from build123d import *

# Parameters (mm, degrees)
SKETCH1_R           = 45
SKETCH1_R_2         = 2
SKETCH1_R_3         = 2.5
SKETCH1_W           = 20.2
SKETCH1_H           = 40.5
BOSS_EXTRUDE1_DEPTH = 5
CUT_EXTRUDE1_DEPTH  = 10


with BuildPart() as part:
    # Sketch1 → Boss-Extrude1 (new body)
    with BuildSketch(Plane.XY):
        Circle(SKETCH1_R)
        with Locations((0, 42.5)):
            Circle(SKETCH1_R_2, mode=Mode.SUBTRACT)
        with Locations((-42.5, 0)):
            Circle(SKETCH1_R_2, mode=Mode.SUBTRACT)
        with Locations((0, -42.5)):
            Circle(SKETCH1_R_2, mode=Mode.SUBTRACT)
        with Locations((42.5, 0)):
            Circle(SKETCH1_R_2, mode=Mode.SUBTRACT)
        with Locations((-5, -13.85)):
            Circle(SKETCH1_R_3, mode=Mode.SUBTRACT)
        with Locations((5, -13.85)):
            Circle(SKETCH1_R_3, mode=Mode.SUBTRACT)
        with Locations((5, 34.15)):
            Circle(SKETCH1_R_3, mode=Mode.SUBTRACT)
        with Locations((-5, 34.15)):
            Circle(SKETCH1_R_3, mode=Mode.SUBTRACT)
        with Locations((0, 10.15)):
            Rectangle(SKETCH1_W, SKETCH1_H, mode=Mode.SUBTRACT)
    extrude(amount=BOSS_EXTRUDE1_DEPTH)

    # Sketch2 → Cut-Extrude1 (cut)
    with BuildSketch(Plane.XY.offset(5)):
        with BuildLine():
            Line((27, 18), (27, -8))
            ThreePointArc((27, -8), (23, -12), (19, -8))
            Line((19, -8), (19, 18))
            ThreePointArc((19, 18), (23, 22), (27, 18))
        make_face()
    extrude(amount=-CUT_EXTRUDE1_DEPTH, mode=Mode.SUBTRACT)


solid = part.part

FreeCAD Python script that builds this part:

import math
import FreeCAD as App
import Part
import Sketcher

V = App.Vector


def add_polygon(sketch, points):
    """Adds a closed chain of lines whose ends are joined by coincident constraints."""
    first, n = sketch.GeometryCount, len(points)
    for a, b in zip(points, points[1:] + points[:1]):
        sketch.addGeometry(Part.LineSegment(App.Vector(*a, 0), App.Vector(*b, 0)), False)
    for i in range(n):
        sketch.addConstraint(Sketcher.Constraint("Coincident", first + i, 2, first + (i + 1) % n, 1))

doc = App.newDocument("Part")
body = doc.addObject("PartDesign::Body", "Body")

# Sketch on XY plane
sketch1 = body.newObject("Sketcher::SketchObject", "Sketch")
sketch1.AttachmentSupport = (doc.getObject("XY_Plane"), [""])
sketch1.MapMode = "FlatFace"
sketch1.addGeometry(Part.Circle(V(0, 0, 0), V(0, 0, 1), 45), False)  # 0
sketch1.addGeometry(Part.Circle(V(-5, -13.8, 0), V(0, 0, 1), 2.5), False)  # 1
sketch1.addGeometry(Part.Circle(V(0, -42.5, 0), V(0, 0, 1), 2), False)  # 2
sketch1.addGeometry(Part.Circle(V(5, -13.8, 0), V(0, 0, 1), 2.5), False)  # 3
sketch1.addGeometry(Part.Circle(V(-42.5, 0, 0), V(0, 0, 1), 2), False)  # 4
sketch1.addGeometry(Part.Circle(V(-5, 34.1, 0), V(0, 0, 1), 2.5), False)  # 5
add_polygon(sketch1, [(10.1, -10.1), (-10.1, -10.1), (-10.1, 30.4), (10.1, 30.4)])  # lines 6-9
sketch1.addGeometry(Part.Circle(V(42.5, 0, 0), V(0, 0, 1), 2), False)  # 10
sketch1.addGeometry(Part.Circle(V(5, 34.1, 0), V(0, 0, 1), 2.5), False)  # 11
sketch1.addGeometry(Part.Circle(V(0, 42.5, 0), V(0, 0, 1), 2), False)  # 12
sketch1.addConstraint(Sketcher.Constraint("Horizontal", 6))
sketch1.addConstraint(Sketcher.Constraint("Vertical", 7))
sketch1.addConstraint(Sketcher.Constraint("Horizontal", 8))
sketch1.addConstraint(Sketcher.Constraint("Vertical", 9))
sketch1.addConstraint(Sketcher.Constraint("Coincident", 0, 3, -1, 1))
sketch1.addConstraint(Sketcher.Constraint("Equal", 1, 3))
sketch1.addConstraint(Sketcher.Constraint("Equal", 2, 4))
sketch1.addConstraint(Sketcher.Constraint("Equal", 3, 5))
sketch1.addConstraint(Sketcher.Constraint("Equal", 4, 10))
sketch1.addConstraint(Sketcher.Constraint("Equal", 5, 11))
sketch1.addConstraint(Sketcher.Constraint("Equal", 10, 12))
sketch1.addConstraint(Sketcher.Constraint("Symmetric", 4, 3, 10, 3, -1, 1))
sketch1.addConstraint(Sketcher.Constraint("Symmetric", 2, 3, 12, 3, -1, 1))
sketch1.addConstraint(Sketcher.Constraint("Symmetric", 1, 3, 3, 3, -2))
sketch1.addConstraint(Sketcher.Constraint("Symmetric", 5, 3, 11, 3, -2))
sketch1.addConstraint(Sketcher.Constraint("PointOnObject", 2, 3, -2))
sketch1.addConstraint(Sketcher.Constraint("PointOnObject", 4, 3, -1))
sketch1.addConstraint(Sketcher.Constraint("Vertical", 1, 3, 5, 3))
sketch1.addConstraint(Sketcher.Constraint("Diameter", 0, 90.0))
sketch1.addConstraint(Sketcher.Constraint("Diameter", 1, 5.0))
sketch1.addConstraint(Sketcher.Constraint("Diameter", 2, 4.0))
sketch1.addConstraint(Sketcher.Constraint("DistanceX", 6, 2, 6, 1, 20.2))
sketch1.addConstraint(Sketcher.Constraint("DistanceY", 7, 1, 7, 2, 40.5))
sketch1.addConstraint(Sketcher.Constraint("DistanceX", 1, 3, -1, 1, 5.0))
sketch1.addConstraint(Sketcher.Constraint("DistanceY", 1, 3, 5, 3, 48.0))
sketch1.addConstraint(Sketcher.Constraint("DistanceY", 2, 3, -1, 1, 42.5))
sketch1.addConstraint(Sketcher.Constraint("DistanceX", 4, 3, -1, 1, 42.5))
sketch1.addConstraint(Sketcher.Constraint("DistanceX", 6, 2, -1, 1, 10.1))
sketch1.addConstraint(Sketcher.Constraint("DistanceY", 6, 2, -1, 1, 10.1))
sketch1.addConstraint(Sketcher.Constraint("DistanceY", 1, 3, -1, 1, 13.85))
pad1 = body.newObject("PartDesign::Pad", "Pad")
pad1.Profile = sketch1
pad1.Length = 5

# Sketch on XY plane
sketch2 = body.newObject("Sketcher::SketchObject", "Sketch001")
sketch2.AttachmentSupport = (doc.getObject("XY_Plane"), [""])
sketch2.MapMode = "FlatFace"
sketch2.AttachmentOffset = App.Placement(V(0, 0, 5), App.Rotation())
sketch2.addGeometry(Part.LineSegment(V(27, -8, 0), V(27, 18, 0)), False)
sketch2.addGeometry(Part.ArcOfCircle(Part.Circle(V(23, 18, 0), V(0, 0, 1), 4), math.radians(0), math.radians(180)), False)
sketch2.addGeometry(Part.LineSegment(V(19, 18, 0), V(19, -8, 0)), False)
sketch2.addGeometry(Part.ArcOfCircle(Part.Circle(V(23, -8, 0), V(0, 0, 1), 4), math.radians(180), math.radians(360)), False)
sketch2.addConstraint(Sketcher.Constraint("Tangent", 0, 2, 1, 1))
sketch2.addConstraint(Sketcher.Constraint("Tangent", 1, 2, 2, 1))
sketch2.addConstraint(Sketcher.Constraint("Tangent", 2, 2, 3, 1))
sketch2.addConstraint(Sketcher.Constraint("Tangent", 3, 2, 0, 1))
sketch2.addConstraint(Sketcher.Constraint("Vertical", 0))
sketch2.addConstraint(Sketcher.Constraint("Vertical", 2))
sketch2.addConstraint(Sketcher.Constraint("Radius", 1, 4.0))
sketch2.addConstraint(Sketcher.Constraint("DistanceY", 0, 1, 0, 2, 26.0))
sketch2.addConstraint(Sketcher.Constraint("DistanceX", -1, 1, 1, 3, 23.0))
sketch2.addConstraint(Sketcher.Constraint("DistanceY", -1, 1, 1, 3, 18.0))
pocket1 = body.newObject("PartDesign::Pocket", "Pocket")
pocket1.Profile = sketch2
pocket1.Length = 10

doc.recompute()
